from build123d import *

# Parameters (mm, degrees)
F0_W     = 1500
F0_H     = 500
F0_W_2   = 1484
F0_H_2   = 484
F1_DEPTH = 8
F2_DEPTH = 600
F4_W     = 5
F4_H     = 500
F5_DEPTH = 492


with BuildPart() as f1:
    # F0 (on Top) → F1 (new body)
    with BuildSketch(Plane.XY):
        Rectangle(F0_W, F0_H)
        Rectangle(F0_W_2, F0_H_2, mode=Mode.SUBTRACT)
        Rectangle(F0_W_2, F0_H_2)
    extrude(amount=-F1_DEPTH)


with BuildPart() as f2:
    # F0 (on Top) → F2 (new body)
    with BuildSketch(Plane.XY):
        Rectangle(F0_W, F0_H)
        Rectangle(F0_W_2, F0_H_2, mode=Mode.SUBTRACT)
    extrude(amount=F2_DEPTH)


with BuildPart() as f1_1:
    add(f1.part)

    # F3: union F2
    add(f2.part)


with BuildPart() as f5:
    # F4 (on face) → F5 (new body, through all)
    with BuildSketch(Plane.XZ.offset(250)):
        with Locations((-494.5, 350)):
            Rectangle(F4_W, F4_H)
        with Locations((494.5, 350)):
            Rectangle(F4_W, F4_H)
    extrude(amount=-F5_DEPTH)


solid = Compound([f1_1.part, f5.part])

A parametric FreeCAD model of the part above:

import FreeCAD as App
import Part
import Sketcher


def add_polygon(sketch, points):
    """Adds a closed chain of lines whose ends are joined by coincident constraints."""
    first, n = sketch.GeometryCount, len(points)
    for a, b in zip(points, points[1:] + points[:1]):
        sketch.addGeometry(Part.LineSegment(App.Vector(*a, 0), App.Vector(*b, 0)), False)
    for i in range(n):
        sketch.addConstraint(Sketcher.Constraint("Coincident", first + i, 2, first + (i + 1) % n, 1))

doc = App.newDocument("Part")
body = doc.addObject("PartDesign::Body", "Body")

# Sketch on XY plane
sketch1 = body.newObject("Sketcher::SketchObject", "Sketch")
sketch1.AttachmentSupport = (doc.getObject("XY_Plane"), [""])
sketch1.MapMode = "FlatFace"
add_polygon(sketch1, [(-750, 250), (-750, -250), (750, -250), (750, 250)])  # lines 0-3
sketch1.addConstraint([
    Sketcher.Constraint("Vertical", 0),
    Sketcher.Constraint("Horizontal", 1),
    Sketcher.Constraint("Vertical", 2),
    Sketcher.Constraint("Horizontal", 3),
    Sketcher.Constraint("Symmetric", 0, 2, 2, 2, -1, 1),
    Sketcher.Constraint("DistanceX", 1, 1, 1, 2, 1500.0),
    Sketcher.Constraint("DistanceY", 0, 2, 0, 1, 500.0),
])
pad1 = body.newObject("PartDesign::Pad", "Pad")
pad1.Profile = sketch1
pad1.Length = 8
pad1.Reversed = True
body2 = doc.addObject("PartDesign::Body", "Body001")

# Sketch on XY plane
sketch2 = body2.newObject("Sketcher::SketchObject", "Sketch001")
sketch2.AttachmentSupport = (doc.getObject("XY_Plane001"), [""])
sketch2.MapMode = "FlatFace"
add_polygon(sketch2, [(-750, 250), (-750, -250), (750, -250), (750, 250)])  # lines 0-3
add_polygon(sketch2, [(742, -242), (-742, -242), (-742, 242), (742, 242)])  # lines 4-7
sketch2.addConstraint([
    Sketcher.Constraint("Vertical", 0),
    Sketcher.Constraint("Horizontal", 1),
    Sketcher.Constraint("Vertical", 2),
    Sketcher.Constraint("Horizontal", 3),
    Sketcher.Constraint("Horizontal", 4),
    Sketcher.Constraint("Vertical", 5),
    Sketcher.Constraint("Horizontal", 6),
    Sketcher.Constraint("Vertical", 7),
    Sketcher.Constraint("Symmetric", 0, 2, 2, 2, -1, 1),
    Sketcher.Constraint("Symmetric", 4, 2, 6, 2, -1, 1),
    Sketcher.Constraint("DistanceX", 1, 1, 1, 2, 1500.0),
    Sketcher.Constraint("DistanceX", 4, 2, 4, 1, 1484.0),
    Sketcher.Constraint("DistanceY", 0, 2, 0, 1, 500.0),
    Sketcher.Constraint("DistanceY", 5, 1, 5, 2, 484.0),
])
pad2 = body2.newObject("PartDesign::Pad", "Pad001")
pad2.Profile = sketch2
pad2.Length = 600
doc.recompute()

boolean = body.newObject("PartDesign::Boolean", "Boolean")
boolean.Type = "Fuse"
boolean.addObjects([body2])
body3 = doc.addObject("PartDesign::Body", "Body002")
body3.AllowCompound = True

# Sketch on XZ plane
sketch3 = body3.newObject("Sketcher::SketchObject", "Sketch002")
sketch3.AttachmentSupport = (doc.getObject("XZ_Plane002"), [""])
sketch3.MapMode = "FlatFace"
sketch3.AttachmentOffset = App.Placement(App.Vector(0, 0, 250), App.Rotation())
add_polygon(sketch3, [(-497, 600), (-497, 100), (-492, 100), (-492, 600)])  # lines 0-3
add_polygon(sketch3, [(492, 600), (492, 100), (497, 100), (497, 600)])  # lines 4-7
sketch3.addConstraint([
    Sketcher.Constraint("Vertical", 0),
    Sketcher.Constraint("Horizontal", 1),
    Sketcher.Constraint("Vertical", 2),
    Sketcher.Constraint("Horizontal", 3),
    Sketcher.Constraint("Vertical", 4),
    Sketcher.Constraint("Horizontal", 5),
    Sketcher.Constraint("Vertical", 6),
    Sketcher.Constraint("Horizontal", 7),
    Sketcher.Constraint("Symmetric", 1, 2, 4, 2, -2),
    Sketcher.Constraint("Symmetric", 3, 2, 6, 2, -2),
    Sketcher.Constraint("DistanceX", 1, 1, 1, 2, 5.0),
    Sketcher.Constraint("DistanceY", 0, 2, 0, 1, 500.0),
    Sketcher.Constraint("DistanceX", 0, 2, -1, 1, 497.0),
    Sketcher.Constraint("DistanceY", -1, 1, 0, 2, 100.0),
])
pad3 = body3.newObject("PartDesign::Pad", "Pad002")
pad3.Profile = sketch3
pad3.Length = 492
pad3.Reversed = True

doc.recompute()
